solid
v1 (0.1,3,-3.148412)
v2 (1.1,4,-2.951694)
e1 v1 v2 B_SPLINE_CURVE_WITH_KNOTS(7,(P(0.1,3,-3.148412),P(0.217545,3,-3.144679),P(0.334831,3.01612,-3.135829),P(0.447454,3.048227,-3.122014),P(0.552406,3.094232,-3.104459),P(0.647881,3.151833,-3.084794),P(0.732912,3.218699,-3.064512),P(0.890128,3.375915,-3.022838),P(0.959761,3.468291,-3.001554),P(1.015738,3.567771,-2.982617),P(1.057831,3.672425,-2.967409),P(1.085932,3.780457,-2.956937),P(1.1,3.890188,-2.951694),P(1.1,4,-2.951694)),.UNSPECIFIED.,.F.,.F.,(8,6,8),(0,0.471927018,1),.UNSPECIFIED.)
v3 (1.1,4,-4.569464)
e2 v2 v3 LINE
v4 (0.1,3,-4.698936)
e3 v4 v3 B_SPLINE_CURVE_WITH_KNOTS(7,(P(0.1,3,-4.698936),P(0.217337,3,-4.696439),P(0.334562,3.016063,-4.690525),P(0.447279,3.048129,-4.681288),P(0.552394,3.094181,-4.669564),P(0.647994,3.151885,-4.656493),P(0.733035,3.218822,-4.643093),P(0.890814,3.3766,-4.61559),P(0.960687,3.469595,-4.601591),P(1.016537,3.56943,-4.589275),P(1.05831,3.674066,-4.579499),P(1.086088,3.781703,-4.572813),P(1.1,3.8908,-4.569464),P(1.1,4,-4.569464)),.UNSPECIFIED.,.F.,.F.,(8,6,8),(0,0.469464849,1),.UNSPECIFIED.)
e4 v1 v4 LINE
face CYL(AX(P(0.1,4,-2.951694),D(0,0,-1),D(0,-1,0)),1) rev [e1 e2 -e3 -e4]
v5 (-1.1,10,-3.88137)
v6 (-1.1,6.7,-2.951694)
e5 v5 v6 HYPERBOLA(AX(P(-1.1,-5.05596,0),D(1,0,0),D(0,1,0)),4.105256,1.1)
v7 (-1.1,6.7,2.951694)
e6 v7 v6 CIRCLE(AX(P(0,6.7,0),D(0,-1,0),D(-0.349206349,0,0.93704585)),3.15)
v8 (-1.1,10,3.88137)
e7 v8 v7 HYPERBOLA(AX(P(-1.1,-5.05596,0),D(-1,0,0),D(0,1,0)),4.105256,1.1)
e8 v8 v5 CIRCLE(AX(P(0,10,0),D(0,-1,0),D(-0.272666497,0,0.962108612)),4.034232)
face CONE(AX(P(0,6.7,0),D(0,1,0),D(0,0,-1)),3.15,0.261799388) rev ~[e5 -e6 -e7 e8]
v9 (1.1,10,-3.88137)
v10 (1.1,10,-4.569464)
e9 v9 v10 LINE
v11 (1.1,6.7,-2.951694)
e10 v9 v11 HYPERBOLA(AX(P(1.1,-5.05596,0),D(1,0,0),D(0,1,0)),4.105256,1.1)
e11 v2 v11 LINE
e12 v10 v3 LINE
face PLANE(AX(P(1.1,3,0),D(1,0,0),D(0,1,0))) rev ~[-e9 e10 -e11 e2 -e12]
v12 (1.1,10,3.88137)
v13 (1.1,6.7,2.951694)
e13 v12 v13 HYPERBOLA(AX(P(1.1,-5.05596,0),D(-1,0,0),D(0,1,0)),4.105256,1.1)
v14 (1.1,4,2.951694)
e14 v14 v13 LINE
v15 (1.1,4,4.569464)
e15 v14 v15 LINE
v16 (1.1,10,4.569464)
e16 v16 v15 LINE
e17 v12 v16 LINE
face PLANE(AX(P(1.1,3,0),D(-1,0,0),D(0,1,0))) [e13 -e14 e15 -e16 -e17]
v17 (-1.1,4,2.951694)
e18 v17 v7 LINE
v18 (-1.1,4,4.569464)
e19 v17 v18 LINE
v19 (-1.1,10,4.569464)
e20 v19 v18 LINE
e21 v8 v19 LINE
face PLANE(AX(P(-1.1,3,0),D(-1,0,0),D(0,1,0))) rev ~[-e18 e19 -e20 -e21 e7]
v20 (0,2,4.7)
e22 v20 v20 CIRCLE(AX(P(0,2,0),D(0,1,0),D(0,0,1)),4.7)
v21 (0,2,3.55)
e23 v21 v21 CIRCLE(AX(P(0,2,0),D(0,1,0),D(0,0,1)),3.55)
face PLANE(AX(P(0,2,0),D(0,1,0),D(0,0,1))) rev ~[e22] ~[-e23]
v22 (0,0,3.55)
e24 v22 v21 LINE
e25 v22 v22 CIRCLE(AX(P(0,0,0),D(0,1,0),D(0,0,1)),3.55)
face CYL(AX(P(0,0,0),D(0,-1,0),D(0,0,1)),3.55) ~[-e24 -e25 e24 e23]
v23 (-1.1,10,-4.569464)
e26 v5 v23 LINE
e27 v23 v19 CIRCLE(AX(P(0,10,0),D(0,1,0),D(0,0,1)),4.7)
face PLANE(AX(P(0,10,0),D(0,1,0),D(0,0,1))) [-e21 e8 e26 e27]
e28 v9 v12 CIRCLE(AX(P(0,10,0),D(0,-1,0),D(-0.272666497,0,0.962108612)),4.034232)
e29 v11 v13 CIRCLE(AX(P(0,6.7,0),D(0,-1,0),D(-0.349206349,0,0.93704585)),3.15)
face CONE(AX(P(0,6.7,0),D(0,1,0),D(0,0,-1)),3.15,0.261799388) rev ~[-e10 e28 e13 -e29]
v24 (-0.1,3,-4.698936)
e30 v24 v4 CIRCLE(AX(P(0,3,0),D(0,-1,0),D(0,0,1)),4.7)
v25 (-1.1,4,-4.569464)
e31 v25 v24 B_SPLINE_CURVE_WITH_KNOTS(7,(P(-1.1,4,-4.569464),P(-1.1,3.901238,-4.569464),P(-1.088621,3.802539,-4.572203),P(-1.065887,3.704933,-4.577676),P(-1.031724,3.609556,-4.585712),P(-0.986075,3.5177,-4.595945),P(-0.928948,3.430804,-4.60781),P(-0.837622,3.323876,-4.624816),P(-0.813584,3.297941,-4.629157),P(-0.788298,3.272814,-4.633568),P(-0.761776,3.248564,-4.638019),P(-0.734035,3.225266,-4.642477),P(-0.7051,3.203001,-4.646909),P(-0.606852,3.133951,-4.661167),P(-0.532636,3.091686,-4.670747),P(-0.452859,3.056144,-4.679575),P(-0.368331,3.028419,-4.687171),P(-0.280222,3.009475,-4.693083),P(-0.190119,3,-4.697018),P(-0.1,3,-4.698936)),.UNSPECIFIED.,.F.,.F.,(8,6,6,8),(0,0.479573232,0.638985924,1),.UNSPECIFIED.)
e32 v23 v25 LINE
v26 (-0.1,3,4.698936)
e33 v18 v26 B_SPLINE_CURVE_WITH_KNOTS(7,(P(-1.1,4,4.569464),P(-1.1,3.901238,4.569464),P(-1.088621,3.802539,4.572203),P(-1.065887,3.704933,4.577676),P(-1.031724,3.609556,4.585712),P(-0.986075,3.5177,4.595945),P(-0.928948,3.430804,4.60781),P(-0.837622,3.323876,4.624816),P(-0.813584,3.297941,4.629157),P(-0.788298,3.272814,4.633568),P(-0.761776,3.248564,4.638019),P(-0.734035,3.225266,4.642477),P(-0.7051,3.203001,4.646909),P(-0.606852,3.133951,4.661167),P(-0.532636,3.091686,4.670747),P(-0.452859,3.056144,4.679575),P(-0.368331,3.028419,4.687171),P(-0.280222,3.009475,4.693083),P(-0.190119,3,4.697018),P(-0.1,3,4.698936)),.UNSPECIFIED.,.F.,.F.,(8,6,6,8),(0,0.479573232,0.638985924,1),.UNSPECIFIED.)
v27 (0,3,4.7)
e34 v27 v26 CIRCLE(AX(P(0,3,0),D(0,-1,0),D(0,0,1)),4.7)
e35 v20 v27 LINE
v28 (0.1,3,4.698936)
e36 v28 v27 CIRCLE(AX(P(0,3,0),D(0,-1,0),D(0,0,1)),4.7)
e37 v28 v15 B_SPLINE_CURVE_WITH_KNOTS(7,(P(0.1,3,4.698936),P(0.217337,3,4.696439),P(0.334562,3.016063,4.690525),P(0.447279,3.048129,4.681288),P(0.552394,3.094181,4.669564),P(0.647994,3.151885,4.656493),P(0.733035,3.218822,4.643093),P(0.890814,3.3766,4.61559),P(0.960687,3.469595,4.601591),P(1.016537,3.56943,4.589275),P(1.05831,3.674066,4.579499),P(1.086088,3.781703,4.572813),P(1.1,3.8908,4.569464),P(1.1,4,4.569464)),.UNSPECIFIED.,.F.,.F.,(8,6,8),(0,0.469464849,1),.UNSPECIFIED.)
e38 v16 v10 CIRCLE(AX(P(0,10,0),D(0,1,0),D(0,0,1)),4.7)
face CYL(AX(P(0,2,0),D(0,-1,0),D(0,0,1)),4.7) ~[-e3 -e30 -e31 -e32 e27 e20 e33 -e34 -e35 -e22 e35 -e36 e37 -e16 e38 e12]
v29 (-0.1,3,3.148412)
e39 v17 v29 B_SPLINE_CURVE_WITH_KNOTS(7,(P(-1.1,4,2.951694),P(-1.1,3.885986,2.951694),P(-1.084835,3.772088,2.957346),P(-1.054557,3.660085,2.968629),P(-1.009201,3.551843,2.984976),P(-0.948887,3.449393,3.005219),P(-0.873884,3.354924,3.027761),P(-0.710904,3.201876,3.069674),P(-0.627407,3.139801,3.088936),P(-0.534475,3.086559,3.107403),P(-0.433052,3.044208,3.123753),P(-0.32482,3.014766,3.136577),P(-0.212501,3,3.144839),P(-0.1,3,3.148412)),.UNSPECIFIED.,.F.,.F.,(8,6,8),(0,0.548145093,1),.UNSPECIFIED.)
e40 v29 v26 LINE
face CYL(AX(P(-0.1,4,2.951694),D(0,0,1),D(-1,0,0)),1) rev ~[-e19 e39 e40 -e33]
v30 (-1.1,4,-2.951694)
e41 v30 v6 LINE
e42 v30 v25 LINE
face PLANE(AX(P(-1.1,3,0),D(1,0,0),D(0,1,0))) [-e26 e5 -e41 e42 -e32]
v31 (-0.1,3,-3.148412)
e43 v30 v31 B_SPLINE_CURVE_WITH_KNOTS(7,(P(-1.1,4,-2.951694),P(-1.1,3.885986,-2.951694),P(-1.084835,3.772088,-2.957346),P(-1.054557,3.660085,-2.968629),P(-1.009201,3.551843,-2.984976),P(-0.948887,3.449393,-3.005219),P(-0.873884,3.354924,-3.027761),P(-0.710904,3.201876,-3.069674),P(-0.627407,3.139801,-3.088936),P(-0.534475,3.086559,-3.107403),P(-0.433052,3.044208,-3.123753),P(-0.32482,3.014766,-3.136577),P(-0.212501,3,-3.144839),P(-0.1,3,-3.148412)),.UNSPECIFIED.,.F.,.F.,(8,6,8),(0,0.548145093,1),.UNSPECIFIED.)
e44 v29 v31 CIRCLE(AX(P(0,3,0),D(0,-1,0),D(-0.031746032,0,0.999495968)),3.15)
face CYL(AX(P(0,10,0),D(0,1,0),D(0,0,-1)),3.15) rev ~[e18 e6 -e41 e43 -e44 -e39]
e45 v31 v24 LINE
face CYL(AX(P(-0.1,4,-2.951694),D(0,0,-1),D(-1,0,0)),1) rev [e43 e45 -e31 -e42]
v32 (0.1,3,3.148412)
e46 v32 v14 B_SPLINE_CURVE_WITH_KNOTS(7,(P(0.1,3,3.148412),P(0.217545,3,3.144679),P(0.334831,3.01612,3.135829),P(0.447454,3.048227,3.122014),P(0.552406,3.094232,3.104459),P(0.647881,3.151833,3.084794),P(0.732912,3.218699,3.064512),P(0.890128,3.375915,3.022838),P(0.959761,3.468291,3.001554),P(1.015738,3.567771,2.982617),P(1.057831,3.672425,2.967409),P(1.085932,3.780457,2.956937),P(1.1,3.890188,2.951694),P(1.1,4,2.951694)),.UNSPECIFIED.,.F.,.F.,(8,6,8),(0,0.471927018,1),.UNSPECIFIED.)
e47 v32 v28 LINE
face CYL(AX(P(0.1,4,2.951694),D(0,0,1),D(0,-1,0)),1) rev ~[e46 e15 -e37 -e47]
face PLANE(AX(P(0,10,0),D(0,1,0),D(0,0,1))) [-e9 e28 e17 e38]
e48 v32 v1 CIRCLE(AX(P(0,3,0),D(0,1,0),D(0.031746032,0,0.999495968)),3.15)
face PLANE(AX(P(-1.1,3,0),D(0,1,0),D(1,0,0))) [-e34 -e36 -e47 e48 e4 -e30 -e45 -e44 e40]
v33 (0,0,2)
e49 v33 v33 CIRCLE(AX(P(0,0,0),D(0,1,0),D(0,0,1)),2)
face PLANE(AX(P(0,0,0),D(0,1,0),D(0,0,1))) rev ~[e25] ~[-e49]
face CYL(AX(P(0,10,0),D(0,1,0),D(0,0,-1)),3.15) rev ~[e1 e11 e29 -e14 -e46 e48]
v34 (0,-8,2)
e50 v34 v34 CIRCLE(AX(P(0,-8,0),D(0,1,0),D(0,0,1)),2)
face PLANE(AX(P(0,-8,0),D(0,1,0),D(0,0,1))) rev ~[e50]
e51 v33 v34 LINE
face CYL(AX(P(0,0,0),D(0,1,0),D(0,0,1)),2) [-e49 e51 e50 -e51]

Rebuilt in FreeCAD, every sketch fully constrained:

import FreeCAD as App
import Part
import Sketcher

V = App.Vector


def edges_at(feature, points):
    """Names of the edges that pass closest to the given points."""
    edges = feature.Shape.Edges
    near = lambda p: min(range(len(edges)), key=lambda i: edges[i].distToShape(Part.Vertex(*p))[0])
    return sorted({f"Edge{near(p) + 1}" for p in points})

doc = App.newDocument("Part")
params = doc.addObject("Spreadsheet::Sheet", "Params")
for row, (alias, value) in enumerate([
    ("sketch1_diameter", "4 mm"),
    ("pad1_length", "8 mm"),
    ("sketch2_diameter", "7.1 mm"),
    ("pad2_length", "2 mm"),
    ("sketch3_diameter", "9.4 mm"),
    ("pad3_length", "8 mm"),
    ("sketch4_diameter", "6.3 mm"),
    ("pocket1_length", "20.188017 mm"),
    ("pocket1_length2", "7 mm"),
    ("chamfer_size", "3.3 mm"),
    ("chamfer_size2", "0.884232 mm"),
    ("sketch5_height", "7 mm"),
    ("sketch5_width", "2.2 mm"),
    ("fillet_radius", "1 mm"),
], start=1):
    params.set(f"A{row}", alias)
    params.set(f"B{row}", "=" + value)
    params.setAlias(f"B{row}", alias)

body = doc.addObject("PartDesign::Body", "Body")

sketch1 = body.newObject("Sketcher::SketchObject", "Sketch")
sketch1.AttachmentSupport = (doc.getObject("XZ_Plane"), [""])
sketch1.MapMode = "FlatFace"
sketch1.addGeometry(Part.Circle(V(0, 0, 0), V(0, 0, 1), 2), False)
sketch1.addConstraint([
    Sketcher.Constraint("Coincident", 0, 3, -1, 1),
    Sketcher.Constraint("Diameter", 0, 4.0),
])
sketch1.setExpression("Constraints[1]", "Params.sketch1_diameter")
pad1 = body.newObject("PartDesign::Pad", "Pad")
pad1.Profile = sketch1
pad1.setExpression("Length", "Params.pad1_length")

sketch2 = body.newObject("Sketcher::SketchObject", "Sketch001")
sketch2.AttachmentSupport = (doc.getObject("XZ_Plane"), [""])
sketch2.MapMode = "FlatFace"
sketch2.addGeometry(Part.Circle(V(0, 0, 0), V(0, 0, 1), 3.55), False)
sketch2.addConstraint([
    Sketcher.Constraint("Coincident", 0, 3, -1, 1),
    Sketcher.Constraint("Diameter", 0, 7.1),
])
sketch2.setExpression("Constraints[1]", "Params.sketch2_diameter")
pad2 = body.newObject("PartDesign::Pad", "Pad001")
pad2.Profile = sketch2
pad2.setExpression("Length", "Params.pad2_length")
pad2.Reversed = True

sketch3 = body.newObject("Sketcher::SketchObject", "Sketch002")
sketch3.AttachmentSupport = (doc.getObject("XZ_Plane"), [""])
sketch3.MapMode = "FlatFace"
sketch3.AttachmentOffset = App.Placement(V(0, 0, -2), App.Rotation())
sketch3.addGeometry(Part.Circle(V(0, 0, 0), V(0, 0, 1), 4.7), False)
sketch3.addConstraint([
    Sketcher.Constraint("Coincident", 0, 3, -1, 1),
    Sketcher.Constraint("Diameter", 0, 9.4),
])
sketch3.setExpression("Constraints[1]", "Params.sketch3_diameter")
pad3 = body.newObject("PartDesign::Pad", "Pad002")
pad3.Profile = sketch3
pad3.setExpression("Length", "Params.pad3_length")
pad3.Reversed = True

sketch4 = body.newObject("Sketcher::SketchObject", "Sketch003")
sketch4.AttachmentSupport = (doc.getObject("XZ_Plane"), [""])
sketch4.MapMode = "FlatFace"
sketch4.AttachmentOffset = App.Placement(V(0, 0, -10), App.Rotation())
sketch4.addGeometry(Part.Circle(V(0, 0, 0), V(0, 0, 1), 3.15), False)
sketch4.addConstraint([
    Sketcher.Constraint("Coincident", 0, 3, -1, 1),
    Sketcher.Constraint("Diameter", 0, 6.3),
])
sketch4.setExpression("Constraints[1]", "Params.sketch4_diameter")
pocket1 = body.newObject("PartDesign::Pocket", "Pocket")
pocket1.Profile = sketch4
pocket1.Type = "TwoLengths"
pocket1.setExpression("Length", "Params.pocket1_length")
pocket1.setExpression("Length2", "Params.pocket1_length2")
doc.recompute()

chamfer = body.newObject("PartDesign::Chamfer", "Chamfer")
chamfer.Base = (pocket1, edges_at(pocket1, [(0, 10, 3.15)]))
chamfer.ChamferType = "Two distances"
chamfer.setExpression("Size", "Params.chamfer_size")
chamfer.setExpression("Size2", "Params.chamfer_size2")
chamfer.FlipDirection = True

sketch5 = body.newObject("Sketcher::SketchObject", "Sketch004")
sketch5.AttachmentSupport = (doc.getObject("XY_Plane"), [""])
sketch5.MapMode = "FlatFace"
sketch5.addGeometry([
    Part.LineSegment(V(-1.1, 10, 0), V(-1.1, 3, 0)),
    Part.LineSegment(V(-1.1, 3, 0), V(1.1, 3, 0)),
    Part.LineSegment(V(1.1, 3, 0), V(1.1, 10, 0)),
    Part.LineSegment(V(1.1, 10, 0), V(-1.1, 10, 0)),
], False)
sketch5.addConstraint([
    Sketcher.Constraint("Coincident", 0, 2, 1, 1),
    Sketcher.Constraint("Coincident", 1, 2, 2, 1),
    Sketcher.Constraint("Coincident", 2, 2, 3, 1),
    Sketcher.Constraint("Coincident", 3, 2, 0, 1),
    Sketcher.Constraint("Vertical", 0),
    Sketcher.Constraint("Horizontal", 1),
    Sketcher.Constraint("Vertical", 2),
    Sketcher.Constraint("Horizontal", 3),
    Sketcher.Constraint("DistanceY", 0, 2, 0, 1, 7.0),
    Sketcher.Constraint("DistanceX", 1, 1, 1, 2, 2.2),
    Sketcher.Constraint("DistanceY", -1, 1, 0, 2, 3.0),
    Sketcher.Constraint("DistanceX", 0, 2, -1, 1, 1.1),
])
sketch5.setExpression("Constraints[8]", "Params.sketch5_height")
sketch5.setExpression("Constraints[9]", "Params.sketch5_width")
pocket2 = body.newObject("PartDesign::Pocket", "Pocket001")
pocket2.Profile = sketch5
pocket2.Type = "ThroughAll"
pocket2.Midplane = True
doc.recompute()

fillet = body.newObject("PartDesign::Fillet", "Fillet")
fillet.Base = (pocket2, edges_at(pocket2, [
    (1.1, 3, 3.761),
    (1.1, 3, -3.761),
    (-1.1, 3, -3.761),
    (-1.1, 3, 3.761),
]))
fillet.setExpression("Radius", "Params.fillet_radius")

doc.recompute()
